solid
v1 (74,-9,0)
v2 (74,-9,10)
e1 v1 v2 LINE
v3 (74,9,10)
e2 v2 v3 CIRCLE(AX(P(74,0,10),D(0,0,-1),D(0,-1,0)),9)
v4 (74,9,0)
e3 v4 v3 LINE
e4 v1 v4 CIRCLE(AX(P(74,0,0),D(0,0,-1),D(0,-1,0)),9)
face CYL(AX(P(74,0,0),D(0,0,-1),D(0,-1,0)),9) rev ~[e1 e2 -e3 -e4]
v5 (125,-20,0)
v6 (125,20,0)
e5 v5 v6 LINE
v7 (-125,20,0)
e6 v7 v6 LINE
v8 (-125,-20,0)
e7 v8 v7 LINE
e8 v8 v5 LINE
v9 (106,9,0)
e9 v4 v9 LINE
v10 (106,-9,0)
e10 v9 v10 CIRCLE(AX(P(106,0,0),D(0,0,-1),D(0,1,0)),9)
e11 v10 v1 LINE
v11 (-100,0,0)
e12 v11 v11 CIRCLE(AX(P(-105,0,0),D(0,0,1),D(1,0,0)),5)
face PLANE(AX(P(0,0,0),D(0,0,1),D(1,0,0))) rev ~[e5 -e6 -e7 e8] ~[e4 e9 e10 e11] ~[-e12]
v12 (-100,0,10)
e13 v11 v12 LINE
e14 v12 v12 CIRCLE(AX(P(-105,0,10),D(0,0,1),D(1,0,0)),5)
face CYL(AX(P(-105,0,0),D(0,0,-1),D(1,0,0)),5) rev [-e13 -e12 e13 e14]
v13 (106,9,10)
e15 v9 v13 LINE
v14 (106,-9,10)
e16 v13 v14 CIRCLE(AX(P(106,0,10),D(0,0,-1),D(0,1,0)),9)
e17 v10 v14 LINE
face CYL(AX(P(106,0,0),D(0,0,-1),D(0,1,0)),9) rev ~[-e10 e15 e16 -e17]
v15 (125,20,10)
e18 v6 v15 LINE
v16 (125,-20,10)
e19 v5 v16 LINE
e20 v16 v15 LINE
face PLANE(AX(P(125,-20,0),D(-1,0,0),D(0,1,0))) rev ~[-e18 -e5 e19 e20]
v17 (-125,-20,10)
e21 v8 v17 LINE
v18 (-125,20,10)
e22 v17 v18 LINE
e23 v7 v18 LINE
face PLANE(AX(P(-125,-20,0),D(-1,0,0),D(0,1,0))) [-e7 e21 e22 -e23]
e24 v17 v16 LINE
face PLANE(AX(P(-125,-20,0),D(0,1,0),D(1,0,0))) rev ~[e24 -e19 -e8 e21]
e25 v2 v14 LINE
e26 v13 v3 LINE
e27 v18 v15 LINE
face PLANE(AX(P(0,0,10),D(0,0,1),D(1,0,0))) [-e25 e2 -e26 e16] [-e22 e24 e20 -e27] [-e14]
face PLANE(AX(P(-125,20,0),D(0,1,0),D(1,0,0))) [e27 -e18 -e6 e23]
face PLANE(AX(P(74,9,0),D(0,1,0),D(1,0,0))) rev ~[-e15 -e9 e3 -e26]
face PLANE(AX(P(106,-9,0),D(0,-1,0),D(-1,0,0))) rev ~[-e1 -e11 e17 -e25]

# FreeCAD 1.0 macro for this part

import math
import FreeCAD as App
import Part
import Sketcher
from FreeCAD import Vector
Q = App.Units.Quantity

doc = App.newDocument("Part")
body = doc.addObject("PartDesign::Body", "Body")

# Sketch on XY plane
sketch1 = body.newObject("Sketcher::SketchObject", "Sketch")
sketch1.AttachmentSupport = (doc.getObject("XY_Plane"), [""])
sketch1.MapMode = "FlatFace"
sketch1.addGeometry(Part.LineSegment(Vector(-125, 20, 0), Vector(-125, -20, 0)), False)
sketch1.addGeometry(Part.LineSegment(Vector(-125, -20, 0), Vector(125, -20, 0)), False)
sketch1.addGeometry(Part.LineSegment(Vector(125, -20, 0), Vector(125, 20, 0)), False)
sketch1.addGeometry(Part.LineSegment(Vector(125, 20, 0), Vector(-125, 20, 0)), False)
sketch1.addGeometry(Part.Circle(Vector(-105, 0, 0), Vector(0, 0, 1), 5), False)
sketch1.addConstraint(Sketcher.Constraint("Coincident", 0, 2, 1, 1))
sketch1.addConstraint(Sketcher.Constraint("Coincident", 1, 2, 2, 1))
sketch1.addConstraint(Sketcher.Constraint("Coincident", 2, 2, 3, 1))
sketch1.addConstraint(Sketcher.Constraint("Coincident", 3, 2, 0, 1))
sketch1.addConstraint(Sketcher.Constraint("Vertical", 0))
sketch1.addConstraint(Sketcher.Constraint("Horizontal", 1))
sketch1.addConstraint(Sketcher.Constraint("Vertical", 2))
sketch1.addConstraint(Sketcher.Constraint("Horizontal", 3))
sketch1.addConstraint(Sketcher.Constraint("Symmetric", 0, 2, 2, 2, -1, 1))
sketch1.addConstraint(Sketcher.Constraint("PointOnObject", 4, 3, -1))
sketch1.addConstraint(Sketcher.Constraint("Diameter", 4, Q("10 mm")))
sketch1.addConstraint(Sketcher.Constraint("DistanceX", 1, 1, 1, 2, Q("250 mm")))
sketch1.addConstraint(Sketcher.Constraint("DistanceY", 0, 2, 0, 1, Q("40 mm")))
sketch1.addConstraint(Sketcher.Constraint("DistanceX", 4, 3, -1, 1, Q("105 mm")))
pad1 = body.newObject("PartDesign::Pad", "Pad")
pad1.Profile = sketch1
pad1.Length = 10

# Sketch on XY plane
sketch2 = body.newObject("Sketcher::SketchObject", "Sketch001")
sketch2.AttachmentSupport = (doc.getObject("XY_Plane"), [""])
sketch2.MapMode = "FlatFace"
sketch2.addGeometry(Part.LineSegment(Vector(74, 9, 0), Vector(106, 9, 0)), False)
sketch2.addGeometry(Part.ArcOfCircle(Part.Circle(Vector(106, 0, 0), Vector(0, 0, 1), 9), math.radians(-90), math.radians(90)), False)
sketch2.addGeometry(Part.LineSegment(Vector(106, -9, 0), Vector(74, -9, 0)), False)
sketch2.addGeometry(Part.ArcOfCircle(Part.Circle(Vector(74, 0, 0), Vector(0, 0, 1), 9), math.radians(90), math.radians(270)), False)
sketch2.addConstraint(Sketcher.Constraint("Tangent", 0, 2, 1, 2))
sketch2.addConstraint(Sketcher.Constraint("Tangent", 1, 1, 2, 1))
sketch2.addConstraint(Sketcher.Constraint("Tangent", 2, 2, 3, 2))
sketch2.addConstraint(Sketcher.Constraint("Tangent", 3, 1, 0, 1))
sketch2.addConstraint(Sketcher.Constraint("Horizontal", 0))
sketch2.addConstraint(Sketcher.Constraint("Horizontal", 2))
sketch2.addConstraint(Sketcher.Constraint("PointOnObject", 1, 3, -1))
sketch2.addConstraint(Sketcher.Constraint("Radius", 1, Q("9 mm")))
sketch2.addConstraint(Sketcher.Constraint("DistanceX", 0, 1, 0, 2, Q("32 mm")))
sketch2.addConstraint(Sketcher.Constraint("DistanceX", -1, 1, 1, 3, Q("106 mm")))
pocket1 = body.newObject("PartDesign::Pocket", "Pocket")
pocket1.Profile = sketch2
pocket1.Length = 25
pocket1.Reversed = True

doc.recompute()
